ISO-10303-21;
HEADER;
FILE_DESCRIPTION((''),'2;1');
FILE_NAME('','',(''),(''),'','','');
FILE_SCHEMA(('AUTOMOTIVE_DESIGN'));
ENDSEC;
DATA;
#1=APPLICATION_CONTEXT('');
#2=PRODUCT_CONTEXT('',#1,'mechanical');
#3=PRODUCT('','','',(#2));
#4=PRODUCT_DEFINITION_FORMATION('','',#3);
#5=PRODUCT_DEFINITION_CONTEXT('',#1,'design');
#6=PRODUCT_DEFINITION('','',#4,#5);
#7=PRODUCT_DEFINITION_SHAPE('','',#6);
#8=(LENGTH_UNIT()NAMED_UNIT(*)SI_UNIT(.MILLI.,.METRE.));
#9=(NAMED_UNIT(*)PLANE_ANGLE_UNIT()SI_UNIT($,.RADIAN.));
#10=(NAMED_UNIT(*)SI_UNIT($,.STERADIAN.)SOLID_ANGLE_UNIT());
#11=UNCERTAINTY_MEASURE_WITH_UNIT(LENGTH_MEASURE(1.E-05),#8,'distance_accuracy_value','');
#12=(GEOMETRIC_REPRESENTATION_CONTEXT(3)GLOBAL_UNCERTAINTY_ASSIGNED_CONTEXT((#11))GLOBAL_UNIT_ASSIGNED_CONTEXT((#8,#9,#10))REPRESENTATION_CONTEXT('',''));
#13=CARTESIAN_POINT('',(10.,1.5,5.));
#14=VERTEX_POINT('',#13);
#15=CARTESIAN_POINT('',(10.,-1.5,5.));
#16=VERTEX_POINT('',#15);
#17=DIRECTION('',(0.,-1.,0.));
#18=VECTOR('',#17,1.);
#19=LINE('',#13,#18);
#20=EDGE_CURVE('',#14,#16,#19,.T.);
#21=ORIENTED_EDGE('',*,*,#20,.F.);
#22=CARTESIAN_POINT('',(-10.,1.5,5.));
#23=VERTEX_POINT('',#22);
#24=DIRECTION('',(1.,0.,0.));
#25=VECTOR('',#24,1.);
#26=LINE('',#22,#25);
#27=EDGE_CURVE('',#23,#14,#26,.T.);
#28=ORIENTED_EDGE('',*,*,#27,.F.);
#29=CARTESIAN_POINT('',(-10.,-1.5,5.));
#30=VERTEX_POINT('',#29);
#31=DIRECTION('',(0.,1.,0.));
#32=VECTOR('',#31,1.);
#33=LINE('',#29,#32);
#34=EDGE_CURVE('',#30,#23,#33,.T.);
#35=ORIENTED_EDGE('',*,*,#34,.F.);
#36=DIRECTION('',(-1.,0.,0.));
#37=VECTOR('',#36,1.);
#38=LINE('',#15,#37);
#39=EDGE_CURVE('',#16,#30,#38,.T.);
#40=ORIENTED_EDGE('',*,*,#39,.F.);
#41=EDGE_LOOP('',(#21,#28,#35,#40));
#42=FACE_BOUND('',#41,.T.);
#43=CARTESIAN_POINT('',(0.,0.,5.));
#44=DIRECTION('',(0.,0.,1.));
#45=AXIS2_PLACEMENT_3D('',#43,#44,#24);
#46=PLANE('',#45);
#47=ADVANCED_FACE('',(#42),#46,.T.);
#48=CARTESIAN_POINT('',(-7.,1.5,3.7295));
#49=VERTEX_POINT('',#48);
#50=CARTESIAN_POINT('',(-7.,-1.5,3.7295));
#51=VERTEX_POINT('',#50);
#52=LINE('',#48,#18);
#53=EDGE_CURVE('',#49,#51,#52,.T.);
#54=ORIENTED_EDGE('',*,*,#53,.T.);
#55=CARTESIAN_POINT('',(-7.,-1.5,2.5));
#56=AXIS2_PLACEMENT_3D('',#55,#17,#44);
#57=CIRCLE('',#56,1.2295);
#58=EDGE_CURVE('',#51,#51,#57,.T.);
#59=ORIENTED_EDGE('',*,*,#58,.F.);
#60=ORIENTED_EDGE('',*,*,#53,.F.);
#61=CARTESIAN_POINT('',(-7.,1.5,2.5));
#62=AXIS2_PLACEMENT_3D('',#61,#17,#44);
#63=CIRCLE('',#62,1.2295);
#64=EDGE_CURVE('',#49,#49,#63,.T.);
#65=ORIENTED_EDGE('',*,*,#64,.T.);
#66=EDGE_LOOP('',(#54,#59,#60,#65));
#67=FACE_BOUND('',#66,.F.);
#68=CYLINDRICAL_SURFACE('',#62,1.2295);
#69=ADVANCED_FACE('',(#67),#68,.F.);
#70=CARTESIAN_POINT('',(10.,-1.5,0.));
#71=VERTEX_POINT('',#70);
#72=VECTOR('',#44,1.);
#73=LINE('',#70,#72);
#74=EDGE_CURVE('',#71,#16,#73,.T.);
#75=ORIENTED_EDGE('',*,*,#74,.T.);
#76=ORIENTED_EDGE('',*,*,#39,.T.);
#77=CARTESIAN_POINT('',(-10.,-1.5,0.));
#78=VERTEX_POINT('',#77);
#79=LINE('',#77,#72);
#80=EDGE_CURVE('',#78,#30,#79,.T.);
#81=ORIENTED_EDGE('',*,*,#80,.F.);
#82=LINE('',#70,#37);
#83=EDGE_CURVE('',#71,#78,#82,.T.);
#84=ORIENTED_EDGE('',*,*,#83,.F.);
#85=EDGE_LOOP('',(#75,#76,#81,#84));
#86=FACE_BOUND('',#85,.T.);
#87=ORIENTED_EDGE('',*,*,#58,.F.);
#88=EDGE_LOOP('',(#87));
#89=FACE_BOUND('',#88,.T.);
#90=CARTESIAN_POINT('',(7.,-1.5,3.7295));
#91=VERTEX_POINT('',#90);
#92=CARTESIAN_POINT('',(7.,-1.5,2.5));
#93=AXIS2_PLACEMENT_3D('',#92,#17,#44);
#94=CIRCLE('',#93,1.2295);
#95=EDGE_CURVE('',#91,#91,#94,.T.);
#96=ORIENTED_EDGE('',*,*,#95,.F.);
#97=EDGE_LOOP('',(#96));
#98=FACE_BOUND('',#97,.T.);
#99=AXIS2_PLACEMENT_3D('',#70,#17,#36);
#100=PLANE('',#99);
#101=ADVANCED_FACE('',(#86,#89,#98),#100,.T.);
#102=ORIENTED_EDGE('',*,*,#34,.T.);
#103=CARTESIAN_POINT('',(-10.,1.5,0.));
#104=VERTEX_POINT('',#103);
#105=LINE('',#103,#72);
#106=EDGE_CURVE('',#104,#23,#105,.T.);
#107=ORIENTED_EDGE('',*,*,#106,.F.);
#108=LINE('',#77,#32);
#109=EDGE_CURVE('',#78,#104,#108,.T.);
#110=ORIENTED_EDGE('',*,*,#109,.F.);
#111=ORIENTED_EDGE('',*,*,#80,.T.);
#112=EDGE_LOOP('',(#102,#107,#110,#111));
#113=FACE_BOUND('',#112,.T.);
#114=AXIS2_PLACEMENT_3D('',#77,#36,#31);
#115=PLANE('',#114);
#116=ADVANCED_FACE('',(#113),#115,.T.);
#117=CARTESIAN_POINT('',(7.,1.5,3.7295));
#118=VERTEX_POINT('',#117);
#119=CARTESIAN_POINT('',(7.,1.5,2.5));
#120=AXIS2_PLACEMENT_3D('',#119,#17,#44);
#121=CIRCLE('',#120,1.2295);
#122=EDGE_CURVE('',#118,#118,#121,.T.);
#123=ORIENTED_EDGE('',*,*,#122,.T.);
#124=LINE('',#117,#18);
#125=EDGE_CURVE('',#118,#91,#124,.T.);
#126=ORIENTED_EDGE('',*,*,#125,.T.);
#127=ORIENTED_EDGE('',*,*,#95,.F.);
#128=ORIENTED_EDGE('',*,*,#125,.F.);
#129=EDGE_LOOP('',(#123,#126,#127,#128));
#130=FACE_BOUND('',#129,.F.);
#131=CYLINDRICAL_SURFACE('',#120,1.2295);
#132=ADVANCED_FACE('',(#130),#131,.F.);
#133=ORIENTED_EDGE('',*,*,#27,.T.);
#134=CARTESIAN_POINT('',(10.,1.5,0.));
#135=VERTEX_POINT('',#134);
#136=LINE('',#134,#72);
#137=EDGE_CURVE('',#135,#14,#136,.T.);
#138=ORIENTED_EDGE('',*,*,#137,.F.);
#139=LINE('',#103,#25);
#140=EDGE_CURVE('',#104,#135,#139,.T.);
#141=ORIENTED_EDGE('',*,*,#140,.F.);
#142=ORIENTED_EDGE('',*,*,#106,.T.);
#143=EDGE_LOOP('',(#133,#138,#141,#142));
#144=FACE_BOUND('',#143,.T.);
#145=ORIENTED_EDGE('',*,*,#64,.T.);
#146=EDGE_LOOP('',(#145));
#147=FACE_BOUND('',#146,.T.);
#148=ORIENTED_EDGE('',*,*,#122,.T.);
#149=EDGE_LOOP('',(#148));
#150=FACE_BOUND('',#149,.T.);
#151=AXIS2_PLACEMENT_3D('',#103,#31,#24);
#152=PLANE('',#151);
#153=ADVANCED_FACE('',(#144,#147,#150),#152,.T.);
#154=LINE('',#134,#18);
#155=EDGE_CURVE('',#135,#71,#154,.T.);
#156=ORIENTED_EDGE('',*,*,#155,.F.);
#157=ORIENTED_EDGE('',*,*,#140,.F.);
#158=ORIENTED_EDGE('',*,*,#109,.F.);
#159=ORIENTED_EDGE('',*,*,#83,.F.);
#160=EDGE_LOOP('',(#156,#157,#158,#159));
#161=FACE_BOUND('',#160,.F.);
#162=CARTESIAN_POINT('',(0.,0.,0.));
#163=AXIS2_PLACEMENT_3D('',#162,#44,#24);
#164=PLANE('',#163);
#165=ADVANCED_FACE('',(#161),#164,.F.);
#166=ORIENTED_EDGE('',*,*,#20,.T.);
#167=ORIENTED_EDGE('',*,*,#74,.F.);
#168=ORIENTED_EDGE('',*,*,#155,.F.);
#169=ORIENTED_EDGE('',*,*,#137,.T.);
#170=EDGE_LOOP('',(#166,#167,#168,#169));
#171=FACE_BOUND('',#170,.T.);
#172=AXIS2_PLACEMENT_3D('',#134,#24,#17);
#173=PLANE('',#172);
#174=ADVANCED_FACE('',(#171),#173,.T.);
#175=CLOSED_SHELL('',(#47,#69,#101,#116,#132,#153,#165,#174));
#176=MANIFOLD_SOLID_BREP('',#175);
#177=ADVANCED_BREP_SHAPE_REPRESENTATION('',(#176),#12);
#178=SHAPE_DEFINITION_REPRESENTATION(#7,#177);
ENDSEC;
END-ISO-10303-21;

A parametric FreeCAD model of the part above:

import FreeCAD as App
import Part
import Sketcher

doc = App.newDocument("Part")
body = doc.addObject("PartDesign::Body", "Body")

sketch1 = doc.addObject("Sketcher::SketchObject", "Sketch")
body.addObject(sketch1)
sketch1.AttachmentSupport = (doc.XY_Plane, [""])
sketch1.MapMode = "FlatFace"
sketch1.addGeometry([
    Part.LineSegment(App.Vector(10, 1.5, 0), App.Vector(-10, 1.5, 0)),
    Part.LineSegment(App.Vector(-10, 1.5, 0), App.Vector(-10, -1.5, 0)),
    Part.LineSegment(App.Vector(-10, -1.5, 0), App.Vector(10, -1.5, 0)),
    Part.LineSegment(App.Vector(10, -1.5, 0), App.Vector(10, 1.5, 0)),
], False)
sketch1.addConstraint([
    Sketcher.Constraint("Coincident", 0, 2, 1, 1),
    Sketcher.Constraint("Coincident", 1, 2, 2, 1),
    Sketcher.Constraint("Coincident", 2, 2, 3, 1),
    Sketcher.Constraint("Coincident", 3, 2, 0, 1),
    Sketcher.Constraint("Horizontal", 0),
    Sketcher.Constraint("Vertical", 1),
    Sketcher.Constraint("Horizontal", 2),
    Sketcher.Constraint("Vertical", 3),
    Sketcher.Constraint("Symmetric", 0, 2, 2, 2, -1, 1),
    Sketcher.Constraint("DistanceX", 0, 2, 0, 1, 20.0),
    Sketcher.Constraint("DistanceY", 1, 2, 1, 1, 3.0),
])
pad1 = doc.addObject("PartDesign::Pad", "Pad")
body.addObject(pad1)
pad1.Profile = sketch1
pad1.Length = 5

sketch2 = doc.addObject("Sketcher::SketchObject", "Sketch001")
body.addObject(sketch2)
sketch2.AttachmentSupport = (doc.XZ_Plane, [""])
sketch2.MapMode = "FlatFace"
sketch2.AttachmentOffset = App.Placement(App.Vector(0, 0, -1.5), App.Rotation())
sketch2.addGeometry([
    Part.Circle(App.Vector(-7, 2.5, 0), App.Vector(0, 0, 1), 1.2),
    Part.Circle(App.Vector(7, 2.5, 0), App.Vector(0, 0, 1), 1.2),
], False)
sketch2.addConstraint([
    Sketcher.Constraint("Equal", 0, 1),
    Sketcher.Constraint("Symmetric", 0, 3, 1, 3, -2),
    Sketcher.Constraint("Diameter", 0, 2.459),
    Sketcher.Constraint("DistanceX", 0, 3, -1, 1, 7.0),
    Sketcher.Constraint("DistanceY", -1, 1, 0, 3, 2.5),
])
doc.recompute()
hole = doc.addObject("PartDesign::Hole", "Hole")
body.addObject(hole)
hole.Profile = sketch2
hole.ThreadType = "None"
hole.Diameter = 2.459
hole.DepthType = "Dimension"
hole.Depth = 8.8
hole.DrillPoint = "Angled"
hole.DrillPointAngle = 118
hole.Reversed = True

doc.recompute()
